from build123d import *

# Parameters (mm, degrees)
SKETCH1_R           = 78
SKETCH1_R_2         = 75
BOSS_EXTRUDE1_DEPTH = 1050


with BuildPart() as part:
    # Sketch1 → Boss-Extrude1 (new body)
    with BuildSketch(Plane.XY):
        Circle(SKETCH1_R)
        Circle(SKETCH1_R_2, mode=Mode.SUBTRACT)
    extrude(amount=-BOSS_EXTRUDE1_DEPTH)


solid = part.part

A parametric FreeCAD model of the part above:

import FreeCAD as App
import Part
import Sketcher

V = App.Vector

doc = App.newDocument("Part")
body = doc.addObject("PartDesign::Body", "Body")

# Sketch on XY plane
sketch1 = doc.addObject("Sketcher::SketchObject", "Sketch")
body.addObject(sketch1)
sketch1.AttachmentSupport = (doc.XY_Plane, [""])
sketch1.MapMode = "FlatFace"
sketch1.addGeometry([
    Part.Circle(V(0, 0, 0), V(0, 0, 1), 78),
    Part.Circle(V(0, 0, 0), V(0, 0, 1), 75),
], False)
sketch1.addConstraint([
    Sketcher.Constraint("Coincident", 0, 3, -1, 1),
    Sketcher.Constraint("Coincident", 1, 3, -1, 1),
    Sketcher.Constraint("Diameter", 0, 156.0),
    Sketcher.Constraint("Diameter", 1, 150.0),
])
pad1 = doc.addObject("PartDesign::Pad", "Pad")
body.addObject(pad1)
pad1.Profile = sketch1
pad1.Length = 1050
pad1.Reversed = True

doc.recompute()
